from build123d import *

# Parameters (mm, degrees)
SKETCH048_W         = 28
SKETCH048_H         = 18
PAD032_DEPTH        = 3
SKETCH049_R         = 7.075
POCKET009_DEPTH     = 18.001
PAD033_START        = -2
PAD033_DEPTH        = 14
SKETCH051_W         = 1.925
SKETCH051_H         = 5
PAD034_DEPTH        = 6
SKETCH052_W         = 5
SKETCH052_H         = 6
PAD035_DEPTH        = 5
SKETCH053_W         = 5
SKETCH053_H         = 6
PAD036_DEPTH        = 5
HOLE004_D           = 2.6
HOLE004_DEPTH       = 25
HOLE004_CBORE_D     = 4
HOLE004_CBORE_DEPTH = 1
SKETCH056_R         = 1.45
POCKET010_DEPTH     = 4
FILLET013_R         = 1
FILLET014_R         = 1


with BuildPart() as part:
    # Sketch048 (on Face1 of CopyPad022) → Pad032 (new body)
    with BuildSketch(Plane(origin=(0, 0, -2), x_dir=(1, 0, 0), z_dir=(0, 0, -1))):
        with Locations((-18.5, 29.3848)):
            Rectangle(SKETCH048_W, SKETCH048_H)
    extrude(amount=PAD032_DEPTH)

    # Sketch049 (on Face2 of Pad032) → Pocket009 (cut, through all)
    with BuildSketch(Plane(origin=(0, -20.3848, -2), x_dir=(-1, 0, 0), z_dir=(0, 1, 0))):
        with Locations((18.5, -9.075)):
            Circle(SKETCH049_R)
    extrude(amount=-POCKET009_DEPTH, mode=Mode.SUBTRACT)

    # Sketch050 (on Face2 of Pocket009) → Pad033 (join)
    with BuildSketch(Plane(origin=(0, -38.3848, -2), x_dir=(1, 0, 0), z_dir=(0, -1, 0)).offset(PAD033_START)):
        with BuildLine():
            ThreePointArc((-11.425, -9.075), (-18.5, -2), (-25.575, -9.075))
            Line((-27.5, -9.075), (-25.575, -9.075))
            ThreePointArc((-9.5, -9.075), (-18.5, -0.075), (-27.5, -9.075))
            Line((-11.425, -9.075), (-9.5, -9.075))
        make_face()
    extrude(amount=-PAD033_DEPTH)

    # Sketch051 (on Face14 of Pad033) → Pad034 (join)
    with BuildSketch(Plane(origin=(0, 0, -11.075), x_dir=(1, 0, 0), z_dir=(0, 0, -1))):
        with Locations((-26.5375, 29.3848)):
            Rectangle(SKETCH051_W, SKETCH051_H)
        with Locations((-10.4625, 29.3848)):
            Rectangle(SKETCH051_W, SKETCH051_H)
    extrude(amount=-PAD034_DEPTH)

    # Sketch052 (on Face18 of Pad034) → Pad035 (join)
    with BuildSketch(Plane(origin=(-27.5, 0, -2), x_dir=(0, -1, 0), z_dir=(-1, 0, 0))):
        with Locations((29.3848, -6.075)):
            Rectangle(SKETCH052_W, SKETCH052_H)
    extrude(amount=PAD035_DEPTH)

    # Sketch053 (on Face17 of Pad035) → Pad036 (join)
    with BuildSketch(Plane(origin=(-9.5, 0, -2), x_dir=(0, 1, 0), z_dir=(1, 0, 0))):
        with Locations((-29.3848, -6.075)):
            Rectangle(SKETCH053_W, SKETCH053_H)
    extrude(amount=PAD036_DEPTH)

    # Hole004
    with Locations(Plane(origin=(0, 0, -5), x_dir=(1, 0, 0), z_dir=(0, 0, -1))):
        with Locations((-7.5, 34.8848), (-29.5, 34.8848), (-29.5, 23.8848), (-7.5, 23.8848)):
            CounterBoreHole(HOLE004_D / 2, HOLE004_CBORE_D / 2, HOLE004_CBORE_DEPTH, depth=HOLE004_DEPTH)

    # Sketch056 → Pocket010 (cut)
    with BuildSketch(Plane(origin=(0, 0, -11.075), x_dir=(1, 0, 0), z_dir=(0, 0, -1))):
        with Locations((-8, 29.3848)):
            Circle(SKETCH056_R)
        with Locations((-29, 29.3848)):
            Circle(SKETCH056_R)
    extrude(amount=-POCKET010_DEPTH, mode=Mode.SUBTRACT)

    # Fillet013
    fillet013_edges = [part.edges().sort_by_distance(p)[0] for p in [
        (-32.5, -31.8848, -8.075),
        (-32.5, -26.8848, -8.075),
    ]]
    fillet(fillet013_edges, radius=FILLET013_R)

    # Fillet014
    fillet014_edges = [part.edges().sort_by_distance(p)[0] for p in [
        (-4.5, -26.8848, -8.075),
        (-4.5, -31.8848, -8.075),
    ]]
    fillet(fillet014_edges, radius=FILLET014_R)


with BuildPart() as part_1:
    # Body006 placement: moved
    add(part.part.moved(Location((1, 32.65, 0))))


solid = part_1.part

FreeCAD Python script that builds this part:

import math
import FreeCAD as App
import Part
import Sketcher

V = App.Vector
Q = App.Units.Quantity


def edges_at(feature, points):
    """Names of the edges that pass closest to the given points."""
    edges = feature.Shape.Edges
    near = lambda p: min(range(len(edges)), key=lambda i: edges[i].distToShape(Part.Vertex(*p))[0])
    return sorted({f"Edge{near(p) + 1}" for p in points})


def add_polygon(sketch, points):
    """Adds a closed chain of lines whose ends are joined by coincident constraints."""
    first, n = sketch.GeometryCount, len(points)
    for a, b in zip(points, points[1:] + points[:1]):
        sketch.addGeometry(Part.LineSegment(App.Vector(*a, 0), App.Vector(*b, 0)), False)
    for i in range(n):
        sketch.addConstraint(Sketcher.Constraint("Coincident", first + i, 2, first + (i + 1) % n, 1))

doc = App.newDocument("Part")
params = doc.addObject("Spreadsheet::Sheet", "Params")
for row, (alias, value) in enumerate([
    ("sketch1_width", "28 mm"),
    ("sketch1_height", "18 mm"),
    ("pad1_length", "3 mm"),
    ("sketch2_diameter", "14.15 mm"),
    ("sketch3_radius", "9 mm"),
    ("pad2_length", "14 mm"),
    ("sketch4_height", "5 mm"),
    ("pad3_length", "6 mm"),
    ("sketch5_width", "5 mm"),
    ("sketch5_height", "6 mm"),
    ("pad4_length", "5 mm"),
    ("sketch6_width", "5 mm"),
    ("sketch6_height", "6 mm"),
    ("pad5_length", "5 mm"),
    ("sketch7_diameter", "2.6 mm"),
    ("hole_diameter", "2.6 mm"),
    ("hole_depth", "25 mm"),
    ("hole_cbore_diameter", "4 mm"),
    ("hole_cbore_depth", "1 mm"),
    ("sketch8_diameter", "2.9 mm"),
    ("pocket2_length", "4 mm"),
    ("fillet_radius", "1 mm"),
    ("fillet2_radius", "1 mm"),
], start=1):
    params.set(f"A{row}", alias)
    params.set(f"B{row}", "=" + value)
    params.setAlias(f"B{row}", alias)

body = doc.addObject("PartDesign::Body", "Body")

# Sketch on XY plane
sketch1 = body.newObject("Sketcher::SketchObject", "Sketch")
sketch1.AttachmentSupport = (doc.getObject("XY_Plane"), [""])
sketch1.MapMode = "FlatFace"
sketch1.AttachmentOffset = App.Placement(V(0, 0, -2), App.Rotation())
add_polygon(sketch1, [(-32, -38), (-32, -20), (-4, -20), (-4, -38)])  # lines 0-3
sketch1.addConstraint(Sketcher.Constraint("Vertical", 0))
sketch1.addConstraint(Sketcher.Constraint("Horizontal", 1))
sketch1.addConstraint(Sketcher.Constraint("Vertical", 2))
sketch1.addConstraint(Sketcher.Constraint("Horizontal", 3))
sketch1.addConstraint(Sketcher.Constraint("DistanceX", 1, 1, 1, 2, Q("28 mm")))
sketch1.addConstraint(Sketcher.Constraint("DistanceY", 0, 1, 0, 2, Q("18 mm")))
sketch1.addConstraint(Sketcher.Constraint("DistanceX", 0, 2, -1, 1, Q("32.5 mm")))
sketch1.addConstraint(Sketcher.Constraint("DistanceY", 0, 2, -1, 1, Q("20.3848 mm")))
sketch1.setExpression("Constraints[8]", "Params.sketch1_width")
sketch1.setExpression("Constraints[9]", "Params.sketch1_height")
pad1 = body.newObject("PartDesign::Pad", "Pad")
pad1.Profile = sketch1
pad1.setExpression("Length", "Params.pad1_length")
pad1.Reversed = True

# Sketch on XZ plane
sketch2 = body.newObject("Sketcher::SketchObject", "Sketch001")
sketch2.AttachmentSupport = (doc.getObject("XZ_Plane"), [""])
sketch2.MapMode = "FlatFace"
sketch2.AttachmentOffset = App.Placement(V(0, 0, 20.3848), App.Rotation())
sketch2.addGeometry(Part.Circle(V(-18, -11, 0), V(0, 0, 1), 7), False)
sketch2.addConstraint(Sketcher.Constraint("Diameter", 0, Q("14.15 mm")))
sketch2.addConstraint(Sketcher.Constraint("DistanceX", 0, 3, -1, 1, Q("18.5 mm")))
sketch2.addConstraint(Sketcher.Constraint("DistanceY", 0, 3, -1, 1, Q("11.075 mm")))
sketch2.setExpression("Constraints[0]", "Params.sketch2_diameter")
pocket1 = body.newObject("PartDesign::Pocket", "Pocket")
pocket1.Profile = sketch2
pocket1.Type = "ThroughAll"
pocket1.Reversed = True

# Sketch on XZ plane
sketch3 = body.newObject("Sketcher::SketchObject", "Sketch002")
sketch3.AttachmentSupport = (doc.getObject("XZ_Plane"), [""])
sketch3.MapMode = "FlatFace"
sketch3.AttachmentOffset = App.Placement(V(0, 0, 36.3848), App.Rotation())
sketch3.addGeometry(Part.ArcOfCircle(Part.Circle(V(-18.5, -11.1, 0), V(0, 0, 1), 7.1), math.radians(0), math.radians(180)), False)
sketch3.addGeometry(Part.LineSegment(V(-11.4, -11.1, 0), V(-9.5, -11.1, 0)), False)
sketch3.addGeometry(Part.ArcOfCircle(Part.Circle(V(-18.5, -11.1, 0), V(0, 0, 1), 9), math.radians(0), math.radians(180)), False)
sketch3.addGeometry(Part.LineSegment(V(-27.5, -11.1, 0), V(-25.6, -11.1, 0)), False)
sketch3.addConstraint(Sketcher.Constraint("Coincident", 0, 1, 1, 1))
sketch3.addConstraint(Sketcher.Constraint("Coincident", 1, 2, 2, 1))
sketch3.addConstraint(Sketcher.Constraint("Coincident", 2, 2, 3, 1))
sketch3.addConstraint(Sketcher.Constraint("Coincident", 3, 2, 0, 2))
sketch3.addConstraint(Sketcher.Constraint("Horizontal", 1))
sketch3.addConstraint(Sketcher.Constraint("Horizontal", 3))
sketch3.addConstraint(Sketcher.Constraint("Coincident", 2, 3, 0, 3))
sketch3.addConstraint(Sketcher.Constraint("Horizontal", 2, 3, 0, 1))
sketch3.addConstraint(Sketcher.Constraint("Horizontal", 1, 2, 2, 2))
sketch3.addConstraint(Sketcher.Constraint("Radius", 2, Q("9 mm")))
sketch3.addConstraint(Sketcher.Constraint("Radius", 0, Q("7.075 mm")))
sketch3.addConstraint(Sketcher.Constraint("DistanceX", 0, 3, -1, 1, Q("18.5 mm")))
sketch3.addConstraint(Sketcher.Constraint("DistanceY", 0, 3, -1, 1, Q("11.075 mm")))
sketch3.setExpression("Constraints[9]", "Params.sketch3_radius")
pad2 = body.newObject("PartDesign::Pad", "Pad001")
pad2.Profile = sketch3
pad2.setExpression("Length", "Params.pad2_length")
pad2.Reversed = True

# Sketch on XY plane
sketch4 = body.newObject("Sketcher::SketchObject", "Sketch003")
sketch4.AttachmentSupport = (doc.getObject("XY_Plane"), [""])
sketch4.MapMode = "FlatFace"
sketch4.AttachmentOffset = App.Placement(V(0, 0, -11.075), App.Rotation())
add_polygon(sketch4, [(-27.5, -31.9), (-27.5, -26.9), (-25.6, -26.9), (-25.6, -31.9)])  # lines 0-3
add_polygon(sketch4, [(-11.4, -31.9), (-11.4, -26.9), (-9.5, -26.9), (-9.5, -31.9)])  # lines 4-7
sketch4.addConstraint(Sketcher.Constraint("Vertical", 0))
sketch4.addConstraint(Sketcher.Constraint("Horizontal", 1))
sketch4.addConstraint(Sketcher.Constraint("Vertical", 2))
sketch4.addConstraint(Sketcher.Constraint("Horizontal", 3))
sketch4.addConstraint(Sketcher.Constraint("Vertical", 4))
sketch4.addConstraint(Sketcher.Constraint("Horizontal", 5))
sketch4.addConstraint(Sketcher.Constraint("Vertical", 6))
sketch4.addConstraint(Sketcher.Constraint("Horizontal", 7))
sketch4.addConstraint(Sketcher.Constraint("Horizontal", 1, 2, 4, 2))
sketch4.addConstraint(Sketcher.Constraint("Horizontal", 3, 2, 6, 2))
sketch4.addConstraint(Sketcher.Constraint("Equal", 3, 5))
sketch4.addConstraint(Sketcher.Constraint("DistanceY", 0, 1, 0, 2, Q("5 mm")))
sketch4.addConstraint(Sketcher.Constraint("DistanceX", 0, 2, 5, 2, Q("18 mm")))
sketch4.addConstraint(Sketcher.Constraint("DistanceX", 0, 2, -1, 1, Q("27.5 mm")))
sketch4.addConstraint(Sketcher.Constraint("DistanceX", 1, 1, 1, 2, Q("1.925 mm")))
sketch4.addConstraint(Sketcher.Constraint("DistanceY", 0, 2, -1, 1, Q("26.8848 mm")))
sketch4.setExpression("Constraints[19]", "Params.sketch4_height")
pad3 = body.newObject("PartDesign::Pad", "Pad002")
pad3.Profile = sketch4
pad3.setExpression("Length", "Params.pad3_length")

# Sketch on YZ plane
sketch5 = body.newObject("Sketcher::SketchObject", "Sketch004")
sketch5.AttachmentSupport = (doc.getObject("YZ_Plane"), [""])
sketch5.MapMode = "FlatFace"
sketch5.AttachmentOffset = App.Placement(V(0, 0, -27.5), App.Rotation())
add_polygon(sketch5, [(-27, -5), (-27, -11), (-32, -11), (-32, -5)])  # lines 0-3
sketch5.addConstraint(Sketcher.Constraint("Vertical", 0))
sketch5.addConstraint(Sketcher.Constraint("Horizontal", 1))
sketch5.addConstraint(Sketcher.Constraint("Vertical", 2))
sketch5.addConstraint(Sketcher.Constraint("Horizontal", 3))
sketch5.addConstraint(Sketcher.Constraint("DistanceX", 1, 2, 1, 1, Q("5 mm")))
sketch5.addConstraint(Sketcher.Constraint("DistanceY", 0, 2, 0, 1, Q("6 mm")))
sketch5.addConstraint(Sketcher.Constraint("DistanceY", 0, 2, -1, 1, Q("11.075 mm")))
sketch5.addConstraint(Sketcher.Constraint("DistanceX", 0, 2, -1, 1, Q("26.8848 mm")))
sketch5.setExpression("Constraints[8]", "Params.sketch5_width")
sketch5.setExpression("Constraints[9]", "Params.sketch5_height")
pad4 = body.newObject("PartDesign::Pad", "Pad003")
pad4.Profile = sketch5
pad4.setExpression("Length", "Params.pad4_length")
pad4.Reversed = True

# Sketch on YZ plane
sketch6 = body.newObject("Sketcher::SketchObject", "Sketch005")
sketch6.AttachmentSupport = (doc.getObject("YZ_Plane"), [""])
sketch6.MapMode = "FlatFace"
sketch6.AttachmentOffset = App.Placement(V(0, 0, -9.5), App.Rotation())
add_polygon(sketch6, [(-32, -5), (-32, -11), (-27, -11), (-27, -5)])  # lines 0-3
sketch6.addConstraint(Sketcher.Constraint("Vertical", 0))
sketch6.addConstraint(Sketcher.Constraint("Horizontal", 1))
sketch6.addConstraint(Sketcher.Constraint("Vertical", 2))
sketch6.addConstraint(Sketcher.Constraint("Horizontal", 3))
sketch6.addConstraint(Sketcher.Constraint("DistanceX", 1, 1, 1, 2, Q("5 mm")))
sketch6.addConstraint(Sketcher.Constraint("DistanceY", 0, 2, 0, 1, Q("6 mm")))
sketch6.addConstraint(Sketcher.Constraint("DistanceY", 0, 2, -1, 1, Q("11.075 mm")))
sketch6.addConstraint(Sketcher.Constraint("DistanceX", 0, 2, -1, 1, Q("31.8848 mm")))
sketch6.setExpression("Constraints[8]", "Params.sketch6_width")
sketch6.setExpression("Constraints[9]", "Params.sketch6_height")
pad5 = body.newObject("PartDesign::Pad", "Pad004")
pad5.Profile = sketch6
pad5.setExpression("Length", "Params.pad5_length")

# Sketch on XY plane
sketch7 = body.newObject("Sketcher::SketchObject", "Sketch006")
sketch7.AttachmentSupport = (doc.getObject("XY_Plane"), [""])
sketch7.MapMode = "FlatFace"
sketch7.AttachmentOffset = App.Placement(V(0, 0, -5), App.Rotation())
sketch7.addGeometry(Part.Circle(V(-7.5, -34.9, 0), V(0, 0, 1), 1.3), False)
sketch7.addGeometry(Part.Circle(V(-29.5, -34.9, 0), V(0, 0, 1), 1.3), False)
sketch7.addGeometry(Part.Circle(V(-29.5, -23.9, 0), V(0, 0, 1), 1.3), False)
sketch7.addGeometry(Part.Circle(V(-7.5, -23.9, 0), V(0, 0, 1), 1.3), False)
sketch7.addConstraint(Sketcher.Constraint("Equal", 0, 1))
sketch7.addConstraint(Sketcher.Constraint("Equal", 1, 2))
sketch7.addConstraint(Sketcher.Constraint("Equal", 2, 3))
sketch7.addConstraint(Sketcher.Constraint("Horizontal", 0, 3, 1, 3))
sketch7.addConstraint(Sketcher.Constraint("Horizontal", 2, 3, 3, 3))
sketch7.addConstraint(Sketcher.Constraint("Vertical", 1, 3, 2, 3))
sketch7.addConstraint(Sketcher.Constraint("Vertical", 0, 3, 3, 3))
sketch7.addConstraint(Sketcher.Constraint("Diameter", 0, Q("2.6 mm")))
sketch7.addConstraint(Sketcher.Constraint("DistanceX", 1, 3, 0, 3, Q("22 mm")))
sketch7.addConstraint(Sketcher.Constraint("DistanceY", 1, 3, 2, 3, Q("11 mm")))
sketch7.addConstraint(Sketcher.Constraint("DistanceX", 0, 3, -1, 1, Q("7.5 mm")))
sketch7.addConstraint(Sketcher.Constraint("DistanceY", 0, 3, -1, 1, Q("34.8848 mm")))
sketch7.setExpression("Constraints[7]", "Params.sketch7_diameter")
doc.recompute()
hole = body.newObject("PartDesign::Hole", "Hole")
hole.Profile = sketch7
hole.ThreadType = "None"
hole.setExpression("Diameter", "Params.hole_diameter")
hole.DepthType = "Dimension"
hole.setExpression("Depth", "Params.hole_depth")
hole.DrillPoint = "Flat"
hole.HoleCutType = "Counterbore"
hole.setExpression("HoleCutDiameter", "Params.hole_cbore_diameter")
hole.setExpression("HoleCutDepth", "Params.hole_cbore_depth")
hole.Reversed = True

# Sketch on XY plane
sketch8 = body.newObject("Sketcher::SketchObject", "Sketch007")
sketch8.AttachmentSupport = (doc.getObject("XY_Plane"), [""])
sketch8.MapMode = "FlatFace"
sketch8.AttachmentOffset = App.Placement(V(0, 0, -11.075), App.Rotation())
sketch8.addGeometry(Part.Circle(V(-8, -29.4, 0), V(0, 0, 1), 1.4), False)
sketch8.addGeometry(Part.Circle(V(-29, -29.4, 0), V(0, 0, 1), 1.4), False)
sketch8.addConstraint(Sketcher.Constraint("Equal", 0, 1))
sketch8.addConstraint(Sketcher.Constraint("Horizontal", 0, 3, 1, 3))
sketch8.addConstraint(Sketcher.Constraint("Diameter", 0, Q("2.9 mm")))
sketch8.addConstraint(Sketcher.Constraint("DistanceX", 0, 3, -1, 1, Q("8 mm")))
sketch8.addConstraint(Sketcher.Constraint("DistanceX", 1, 3, -1, 1, Q("29 mm")))
sketch8.addConstraint(Sketcher.Constraint("DistanceY", 0, 3, -1, 1, Q("29.3848 mm")))
sketch8.setExpression("Constraints[2]", "Params.sketch8_diameter")
pocket2 = body.newObject("PartDesign::Pocket", "Pocket001")
pocket2.Profile = sketch8
pocket2.setExpression("Length", "Params.pocket2_length")
pocket2.Reversed = True
doc.recompute()

fillet = body.newObject("PartDesign::Fillet", "Fillet")
fillet.Base = (pocket2, edges_at(pocket2, [(-32.5, -31.885, -8.075), (-32.5, -26.885, -8.075)]))
fillet.setExpression("Radius", "Params.fillet_radius")
doc.recompute()

fillet2 = body.newObject("PartDesign::Fillet", "Fillet001")
fillet2.Base = (fillet, edges_at(fillet, [(-4.5, -26.885, -8.075), (-4.5, -31.885, -8.075)]))
fillet2.setExpression("Radius", "Params.fillet2_radius")
body2 = doc.addObject("PartDesign::Body", "Body001")
doc.recompute()

body.Placement = App.Placement(V(1, 32.65, 0), App.Rotation(V(0, 0, 1), 0))
boolean = body2.newObject("PartDesign::Boolean", "Boolean")
boolean.Type = "Fuse"
boolean.addObjects([body])

doc.recompute()
